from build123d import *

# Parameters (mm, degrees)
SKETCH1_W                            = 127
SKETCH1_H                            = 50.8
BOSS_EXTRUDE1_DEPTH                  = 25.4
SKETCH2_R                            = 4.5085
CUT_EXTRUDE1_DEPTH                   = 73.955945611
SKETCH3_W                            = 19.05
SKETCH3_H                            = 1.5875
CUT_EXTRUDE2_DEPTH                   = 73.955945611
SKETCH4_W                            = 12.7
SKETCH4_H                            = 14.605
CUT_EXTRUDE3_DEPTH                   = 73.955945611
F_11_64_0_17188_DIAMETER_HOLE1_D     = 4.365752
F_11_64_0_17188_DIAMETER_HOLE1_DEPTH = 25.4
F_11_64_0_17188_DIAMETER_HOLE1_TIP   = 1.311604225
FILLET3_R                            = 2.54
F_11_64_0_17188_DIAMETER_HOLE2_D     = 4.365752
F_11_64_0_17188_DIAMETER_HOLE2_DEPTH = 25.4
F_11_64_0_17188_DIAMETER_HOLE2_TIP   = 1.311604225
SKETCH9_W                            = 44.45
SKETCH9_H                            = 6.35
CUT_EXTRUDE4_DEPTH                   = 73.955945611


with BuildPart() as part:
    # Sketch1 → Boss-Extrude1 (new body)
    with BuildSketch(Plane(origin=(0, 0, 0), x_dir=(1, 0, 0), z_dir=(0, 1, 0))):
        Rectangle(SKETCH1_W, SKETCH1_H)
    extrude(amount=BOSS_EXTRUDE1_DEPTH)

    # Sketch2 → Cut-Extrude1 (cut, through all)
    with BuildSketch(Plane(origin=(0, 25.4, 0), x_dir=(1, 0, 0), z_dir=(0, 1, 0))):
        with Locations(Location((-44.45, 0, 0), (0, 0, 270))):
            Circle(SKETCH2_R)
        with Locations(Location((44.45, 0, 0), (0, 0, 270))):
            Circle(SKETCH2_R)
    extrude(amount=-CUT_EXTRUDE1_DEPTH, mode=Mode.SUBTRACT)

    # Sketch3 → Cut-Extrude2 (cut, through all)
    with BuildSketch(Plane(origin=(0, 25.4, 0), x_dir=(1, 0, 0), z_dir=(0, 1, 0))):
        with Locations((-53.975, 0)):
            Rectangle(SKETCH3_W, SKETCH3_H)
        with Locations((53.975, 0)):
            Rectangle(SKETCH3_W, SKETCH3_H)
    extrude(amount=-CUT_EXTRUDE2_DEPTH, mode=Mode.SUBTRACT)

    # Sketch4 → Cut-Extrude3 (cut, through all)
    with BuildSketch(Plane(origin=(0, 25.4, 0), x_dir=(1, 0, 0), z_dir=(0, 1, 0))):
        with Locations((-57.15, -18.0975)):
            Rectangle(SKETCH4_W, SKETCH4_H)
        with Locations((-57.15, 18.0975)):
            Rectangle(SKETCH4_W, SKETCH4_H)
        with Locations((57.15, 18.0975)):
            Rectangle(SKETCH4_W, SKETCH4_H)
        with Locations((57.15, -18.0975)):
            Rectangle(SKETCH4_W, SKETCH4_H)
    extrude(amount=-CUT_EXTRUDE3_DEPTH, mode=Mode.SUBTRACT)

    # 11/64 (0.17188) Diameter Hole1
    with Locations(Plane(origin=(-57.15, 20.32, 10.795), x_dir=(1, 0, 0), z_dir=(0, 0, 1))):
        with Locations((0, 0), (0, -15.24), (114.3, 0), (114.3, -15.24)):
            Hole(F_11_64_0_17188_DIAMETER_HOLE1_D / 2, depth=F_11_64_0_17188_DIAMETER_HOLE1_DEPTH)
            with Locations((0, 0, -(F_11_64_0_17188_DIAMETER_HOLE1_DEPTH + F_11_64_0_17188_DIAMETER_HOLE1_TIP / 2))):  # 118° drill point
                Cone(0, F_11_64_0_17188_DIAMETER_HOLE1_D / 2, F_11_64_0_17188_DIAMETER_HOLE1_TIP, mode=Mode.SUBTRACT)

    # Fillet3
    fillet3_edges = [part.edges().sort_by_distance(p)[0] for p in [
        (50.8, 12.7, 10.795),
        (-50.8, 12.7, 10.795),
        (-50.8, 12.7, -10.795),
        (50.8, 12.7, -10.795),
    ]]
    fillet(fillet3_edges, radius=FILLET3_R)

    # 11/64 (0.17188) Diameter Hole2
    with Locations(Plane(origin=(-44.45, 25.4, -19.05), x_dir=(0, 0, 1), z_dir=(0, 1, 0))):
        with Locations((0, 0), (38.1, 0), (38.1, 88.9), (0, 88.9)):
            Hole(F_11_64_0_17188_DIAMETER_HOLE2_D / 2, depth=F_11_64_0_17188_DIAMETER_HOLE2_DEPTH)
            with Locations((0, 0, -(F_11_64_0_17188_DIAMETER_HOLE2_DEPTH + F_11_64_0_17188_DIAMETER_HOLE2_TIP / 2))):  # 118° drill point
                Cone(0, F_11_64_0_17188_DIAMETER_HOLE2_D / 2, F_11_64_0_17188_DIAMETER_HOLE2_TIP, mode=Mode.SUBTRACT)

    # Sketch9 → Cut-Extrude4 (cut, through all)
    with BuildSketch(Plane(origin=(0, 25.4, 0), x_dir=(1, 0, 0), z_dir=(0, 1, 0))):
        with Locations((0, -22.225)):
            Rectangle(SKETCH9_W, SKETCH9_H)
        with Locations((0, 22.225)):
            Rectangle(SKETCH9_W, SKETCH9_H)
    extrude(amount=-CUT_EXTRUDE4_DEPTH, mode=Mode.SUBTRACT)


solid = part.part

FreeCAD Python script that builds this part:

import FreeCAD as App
import Part
import Sketcher

V = App.Vector
Q = App.Units.Quantity


def edges_at(feature, points):
    """Names of the edges that pass closest to the given points."""
    edges = feature.Shape.Edges
    near = lambda p: min(range(len(edges)), key=lambda i: edges[i].distToShape(Part.Vertex(*p))[0])
    return sorted({f"Edge{near(p) + 1}" for p in points})


def add_polygon(sketch, points):
    """Adds a closed chain of lines whose ends are joined by coincident constraints."""
    first, n = sketch.GeometryCount, len(points)
    for a, b in zip(points, points[1:] + points[:1]):
        sketch.addGeometry(Part.LineSegment(App.Vector(*a, 0), App.Vector(*b, 0)), False)
    for i in range(n):
        sketch.addConstraint(Sketcher.Constraint("Coincident", first + i, 2, first + (i + 1) % n, 1))

doc = App.newDocument("Part")
body = doc.addObject("PartDesign::Body", "Body")

sketch1 = doc.addObject("Sketcher::SketchObject", "Sketch")
body.addObject(sketch1)
sketch1.AttachmentSupport = (doc.XZ_Plane, [""])
sketch1.MapMode = "FlatFace"
add_polygon(sketch1, [(-63.5, -25.4), (-63.5, 25.4), (63.5, 25.4), (63.5, -25.4)])
sketch1.addConstraint([
    Sketcher.Constraint("Vertical", 0),
    Sketcher.Constraint("Horizontal", 1),
    Sketcher.Constraint("Vertical", 2),
    Sketcher.Constraint("Horizontal", 3),
    Sketcher.Constraint("Symmetric", 0, 2, 2, 2, -1, 1),
    Sketcher.Constraint("DistanceX", 1, 1, 1, 2, Q("5 in")),
    Sketcher.Constraint("DistanceY", 0, 1, 0, 2, Q("2 in")),
])
pad1 = doc.addObject("PartDesign::Pad", "Pad")
body.addObject(pad1)
pad1.Profile = sketch1
pad1.Length = Q("1 in")
pad1.Reversed = True

sketch2 = doc.addObject("Sketcher::SketchObject", "Sketch001")
body.addObject(sketch2)
sketch2.AttachmentSupport = (doc.XZ_Plane, [""])
sketch2.MapMode = "FlatFace"
sketch2.AttachmentOffset = App.Placement(V(0, 0, -1 * 25.4), App.Rotation())
sketch2.addGeometry([
    Part.Circle(V(-44.45, 0, 0), V(0, 0, 1), 4.5085),
    Part.Circle(V(44.45, 0, 0), V(0, 0, 1), 4.5085),
], False)
sketch2.addConstraint([
    Sketcher.Constraint("Equal", 0, 1),
    Sketcher.Constraint("Symmetric", 0, 3, 1, 3, -1, 1),
    Sketcher.Constraint("PointOnObject", 0, 3, -1),
    Sketcher.Constraint("Diameter", 0, Q("0.355 in")),
    Sketcher.Constraint("DistanceX", 0, 3, 1, 3, Q("3.5 in")),
])
pocket1 = doc.addObject("PartDesign::Pocket", "Pocket")
body.addObject(pocket1)
pocket1.Profile = sketch2
pocket1.Type = "ThroughAll"
pocket1.Reversed = True

sketch3 = doc.addObject("Sketcher::SketchObject", "Sketch002")
body.addObject(sketch3)
sketch3.AttachmentSupport = (doc.XZ_Plane, [""])
sketch3.MapMode = "FlatFace"
sketch3.AttachmentOffset = App.Placement(V(0, 0, -1 * 25.4), App.Rotation())
add_polygon(sketch3, [(-63.5, -0.79375), (-63.5, 0.79375), (-44.45, 0.79375), (-44.45, -0.79375)])
add_polygon(sketch3, [(44.45, -0.79375), (44.45, 0.79375), (63.5, 0.79375), (63.5, -0.79375)])
sketch3.addConstraint([
    Sketcher.Constraint("Vertical", 0),
    Sketcher.Constraint("Horizontal", 1),
    Sketcher.Constraint("Vertical", 2),
    Sketcher.Constraint("Horizontal", 3),
    Sketcher.Constraint("Vertical", 4),
    Sketcher.Constraint("Horizontal", 5),
    Sketcher.Constraint("Vertical", 6),
    Sketcher.Constraint("Horizontal", 7),
    Sketcher.Constraint("Symmetric", 2, 2, 4, 2, -1, 1),
    Sketcher.Constraint("Symmetric", 0, 2, 6, 2, -1, 1),
    Sketcher.Constraint("Horizontal", 1, 2, 4, 2),
    Sketcher.Constraint("DistanceX", 0, 2, 5, 2, Q("5 in")),
    Sketcher.Constraint("DistanceX", 1, 1, 1, 2, Q("0.75 in")),
    Sketcher.Constraint("DistanceY", 0, 1, 0, 2, Q("0.0625 in")),
])
pocket2 = doc.addObject("PartDesign::Pocket", "Pocket001")
body.addObject(pocket2)
pocket2.Profile = sketch3
pocket2.Type = "ThroughAll"
pocket2.Reversed = True

sketch4 = doc.addObject("Sketcher::SketchObject", "Sketch003")
body.addObject(sketch4)
sketch4.AttachmentSupport = (doc.XZ_Plane, [""])
sketch4.MapMode = "FlatFace"
sketch4.AttachmentOffset = App.Placement(V(0, 0, -1 * 25.4), App.Rotation())
add_polygon(sketch4, [(-63.5, 10.795), (-63.5, 25.4), (-50.8, 25.4), (-50.8, 10.795)])
add_polygon(sketch4, [(-63.5, -25.4), (-63.5, -10.795), (-50.8, -10.795), (-50.8, -25.4)])
add_polygon(sketch4, [(50.8, -25.4), (50.8, -10.795), (63.5, -10.795), (63.5, -25.4)])
add_polygon(sketch4, [(50.8, 10.795), (50.8, 25.4), (63.5, 25.4), (63.5, 10.795)])
sketch4.addConstraint([
    Sketcher.Constraint("Vertical", 0),
    Sketcher.Constraint("Horizontal", 1),
    Sketcher.Constraint("Vertical", 2),
    Sketcher.Constraint("Horizontal", 3),
    Sketcher.Constraint("Vertical", 4),
    Sketcher.Constraint("Horizontal", 5),
    Sketcher.Constraint("Vertical", 6),
    Sketcher.Constraint("Horizontal", 7),
    Sketcher.Constraint("Vertical", 8),
    Sketcher.Constraint("Horizontal", 9),
    Sketcher.Constraint("Vertical", 10),
    Sketcher.Constraint("Horizontal", 11),
    Sketcher.Constraint("Vertical", 12),
    Sketcher.Constraint("Horizontal", 13),
    Sketcher.Constraint("Vertical", 14),
    Sketcher.Constraint("Horizontal", 15),
    Sketcher.Constraint("Symmetric", 2, 2, 8, 2, -1, 1),
    Sketcher.Constraint("Symmetric", 0, 2, 10, 2, -1, 1),
    Sketcher.Constraint("Symmetric", 6, 2, 12, 2, -1, 1),
    Sketcher.Constraint("Symmetric", 4, 2, 14, 2, -1, 1),
    Sketcher.Constraint("Symmetric", 5, 2, 8, 2, -2),
    Sketcher.Constraint("Symmetric", 7, 2, 10, 2, -2),
    Sketcher.Constraint("DistanceX", 1, 1, 1, 2, Q("0.5 in")),
    Sketcher.Constraint("DistanceY", -1, 1, 0, 2, Q("1 in")),
    Sketcher.Constraint("DistanceX", 1, 2, -1, 1, Q("2 in")),
    Sketcher.Constraint("DistanceY", 0, 1, 0, 2, Q("0.575 in")),
])
pocket3 = doc.addObject("PartDesign::Pocket", "Pocket002")
body.addObject(pocket3)
pocket3.Profile = sketch4
pocket3.Type = "ThroughAll"
pocket3.Reversed = True

sketch5 = doc.addObject("Sketcher::SketchObject", "Sketch004")
body.addObject(sketch5)
sketch5.AttachmentSupport = (doc.XY_Plane, [""])
sketch5.MapMode = "FlatFace"
sketch5.AttachmentOffset = App.Placement(V(0, 0, 0.425 * 25.4), App.Rotation())
sketch5.addGeometry([
    Part.Circle(V(-57.15, 20.32, 0), V(0, 0, 1), 2.182876),
    Part.Circle(V(-57.15, 5.08, 0), V(0, 0, 1), 2.182876),
    Part.Circle(V(57.15, 20.32, 0), V(0, 0, 1), 2.182876),
    Part.Circle(V(57.15, 5.08, 0), V(0, 0, 1), 2.182876),
], False)
sketch5.addConstraint([
    Sketcher.Constraint("Equal", 0, 1),
    Sketcher.Constraint("Equal", 1, 2),
    Sketcher.Constraint("Equal", 2, 3),
    Sketcher.Constraint("Symmetric", 0, 3, 2, 3, -2),
    Sketcher.Constraint("Symmetric", 1, 3, 3, 3, -2),
    Sketcher.Constraint("Vertical", 0, 3, 1, 3),
    Sketcher.Constraint("DistanceY", -1, 1, 0, 3, Q("0.8 in")),
    Sketcher.Constraint("DistanceY", -1, 1, 1, 3, Q("0.2 in")),
    Sketcher.Constraint("DistanceX", 0, 3, 2, 3, Q("4.5 in")),
    Sketcher.Constraint("Diameter", 0, Q("4.365752 mm")),
])
doc.recompute()
hole = doc.addObject("PartDesign::Hole", "Hole")
body.addObject(hole)
hole.Profile = sketch5
hole.ThreadType = "None"
hole.Diameter = 4.365752
hole.DepthType = "Dimension"
hole.Depth = Q("1 in")
hole.DrillPoint = "Angled"
hole.DrillPointAngle = 118
doc.recompute()

fillet = doc.addObject("PartDesign::Fillet", "Fillet")
body.addObject(fillet)
fillet.Base = (hole, edges_at(hole, [
    (50.8, 12.7, 10.795),
    (-50.8, 12.7, 10.795),
    (-50.8, 12.7, -10.795),
    (50.8, 12.7, -10.795),
]))
fillet.Radius = Q("0.1 in")

sketch6 = doc.addObject("Sketcher::SketchObject", "Sketch005")
body.addObject(sketch6)
sketch6.AttachmentSupport = (doc.XZ_Plane, [""])
sketch6.MapMode = "FlatFace"
sketch6.AttachmentOffset = App.Placement(V(0, 0, -1 * 25.4), App.Rotation())
sketch6.addGeometry([
    Part.Circle(V(-44.45, -19.05, 0), V(0, 0, 1), 2.182876),
    Part.Circle(V(-44.45, 19.05, 0), V(0, 0, 1), 2.182876),
    Part.Circle(V(44.45, 19.05, 0), V(0, 0, 1), 2.182876),
    Part.Circle(V(44.45, -19.05, 0), V(0, 0, 1), 2.182876),
], False)
sketch6.addConstraint([
    Sketcher.Constraint("Equal", 0, 1),
    Sketcher.Constraint("Equal", 1, 2),
    Sketcher.Constraint("Equal", 2, 3),
    Sketcher.Constraint("Symmetric", 0, 3, 2, 3, -1, 1),
    Sketcher.Constraint("Symmetric", 1, 3, 3, 3, -1, 1),
    Sketcher.Constraint("Symmetric", 1, 3, 2, 3, -2),
    Sketcher.Constraint("DistanceY", 0, 3, 1, 3, Q("1.5 in")),
    Sketcher.Constraint("DistanceX", 1, 3, 2, 3, Q("3.5 in")),
    Sketcher.Constraint("Diameter", 0, Q("4.365752 mm")),
])
doc.recompute()
hole2 = doc.addObject("PartDesign::Hole", "Hole001")
body.addObject(hole2)
hole2.Profile = sketch6
hole2.ThreadType = "None"
hole2.Diameter = 4.365752
hole2.DepthType = "Dimension"
hole2.Depth = Q("1 in")
hole2.DrillPoint = "Angled"
hole2.DrillPointAngle = 118
hole2.Reversed = True

sketch7 = doc.addObject("Sketcher::SketchObject", "Sketch006")
body.addObject(sketch7)
sketch7.AttachmentSupport = (doc.XZ_Plane, [""])
sketch7.MapMode = "FlatFace"
sketch7.AttachmentOffset = App.Placement(V(0, 0, -1 * 25.4), App.Rotation())
add_polygon(sketch7, [(-22.225, 19.05), (-22.225, 25.4), (22.225, 25.4), (22.225, 19.05)])
add_polygon(sketch7, [(-22.225, -25.4), (-22.225, -19.05), (22.225, -19.05), (22.225, -25.4)])
sketch7.addConstraint([
    Sketcher.Constraint("Vertical", 0),
    Sketcher.Constraint("Horizontal", 1),
    Sketcher.Constraint("Vertical", 2),
    Sketcher.Constraint("Horizontal", 3),
    Sketcher.Constraint("Vertical", 4),
    Sketcher.Constraint("Horizontal", 5),
    Sketcher.Constraint("Vertical", 6),
    Sketcher.Constraint("Horizontal", 7),
    Sketcher.Constraint("Symmetric", 2, 2, 4, 2, -1, 1),
    Sketcher.Constraint("Symmetric", 0, 2, 6, 2, -1, 1),
    Sketcher.Constraint("Vertical", 3, 2, 4, 2),
    Sketcher.Constraint("DistanceY", -1, 1, 0, 2, Q("1 in")),
    Sketcher.Constraint("DistanceX", 1, 1, 1, 2, Q("1.75 in")),
    Sketcher.Constraint("DistanceY", 0, 1, 0, 2, Q("0.25 in")),
])
pocket4 = doc.addObject("PartDesign::Pocket", "Pocket003")
body.addObject(pocket4)
pocket4.Profile = sketch7
pocket4.Type = "ThroughAll"
pocket4.Reversed = True

doc.recompute()
